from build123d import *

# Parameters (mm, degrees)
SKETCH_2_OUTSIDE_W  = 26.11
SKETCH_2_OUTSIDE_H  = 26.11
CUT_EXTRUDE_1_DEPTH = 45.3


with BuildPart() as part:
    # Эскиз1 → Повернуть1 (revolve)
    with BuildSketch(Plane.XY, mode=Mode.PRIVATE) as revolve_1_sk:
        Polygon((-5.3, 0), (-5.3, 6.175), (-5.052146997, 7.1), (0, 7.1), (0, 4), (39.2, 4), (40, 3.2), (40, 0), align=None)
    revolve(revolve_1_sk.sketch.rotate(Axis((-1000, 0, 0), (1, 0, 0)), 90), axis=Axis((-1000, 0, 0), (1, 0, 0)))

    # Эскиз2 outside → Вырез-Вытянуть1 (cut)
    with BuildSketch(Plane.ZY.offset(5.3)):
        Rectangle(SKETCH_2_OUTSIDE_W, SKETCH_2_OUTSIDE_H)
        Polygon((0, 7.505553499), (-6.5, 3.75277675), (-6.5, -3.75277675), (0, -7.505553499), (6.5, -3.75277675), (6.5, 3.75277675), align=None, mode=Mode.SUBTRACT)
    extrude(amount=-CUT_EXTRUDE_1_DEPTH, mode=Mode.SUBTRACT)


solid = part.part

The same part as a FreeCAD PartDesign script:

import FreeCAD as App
import Part
import Sketcher

V = App.Vector
Q = App.Units.Quantity

doc = App.newDocument("Part")
body = doc.addObject("PartDesign::Body", "Body")

sketch1 = doc.addObject("Sketcher::SketchObject", "Sketch")
body.addObject(sketch1)
sketch1.AttachmentSupport = (doc.XY_Plane, [""])
sketch1.MapMode = "FlatFace"
sketch1.addGeometry([
    Part.LineSegment(V(-5.3, 6.2, 0), V(-5.3, 0, 0)),
    Part.LineSegment(V(-5.3, 0, 0), V(40, 0, 0)),
    Part.LineSegment(V(40, 0, 0), V(40, 3.2, 0)),
    Part.LineSegment(V(40, 3.2, 0), V(39.2, 4, 0)),
    Part.LineSegment(V(39.2, 4, 0), V(0, 4, 0)),
    Part.LineSegment(V(0, 4, 0), V(0, 7.1, 0)),
    Part.LineSegment(V(0, 7.1, 0), V(-5.1, 7.1, 0)),
    Part.LineSegment(V(-5.1, 7.1, 0), V(-5.3, 6.2, 0)),
], False)
sketch1.addConstraint([
    Sketcher.Constraint("Coincident", 0, 2, 1, 1),
    Sketcher.Constraint("Coincident", 1, 2, 2, 1),
    Sketcher.Constraint("Coincident", 2, 2, 3, 1),
    Sketcher.Constraint("Coincident", 3, 2, 4, 1),
    Sketcher.Constraint("Coincident", 4, 2, 5, 1),
    Sketcher.Constraint("Coincident", 5, 2, 6, 1),
    Sketcher.Constraint("Coincident", 6, 2, 7, 1),
    Sketcher.Constraint("Coincident", 7, 2, 0, 1),
    Sketcher.Constraint("Vertical", 0),
    Sketcher.Constraint("Horizontal", 1),
    Sketcher.Constraint("Vertical", 2),
    Sketcher.Constraint("Horizontal", 4),
    Sketcher.Constraint("Vertical", 5),
    Sketcher.Constraint("Horizontal", 6),
    Sketcher.Constraint("PointOnObject", 0, 2, -1),
    Sketcher.Constraint("PointOnObject", 4, 2, -2),
    Sketcher.Constraint("Angle", 3, Q("135 deg")),
    Sketcher.Constraint("Angle", 7, Q("-105 deg")),
    Sketcher.Constraint("DistanceX", 1, 1, 1, 2, 45.3),
    Sketcher.Constraint("DistanceX", 4, 2, 4, 1, 39.2),
    Sketcher.Constraint("DistanceY", 2, 1, 2, 2, 3.2),
    Sketcher.Constraint("DistanceY", 5, 1, 5, 2, 3.1),
    Sketcher.Constraint("DistanceX", -1, 1, 1, 2, 40.0),
    Sketcher.Constraint("DistanceY", 0, 2, 0, 1, 6.175),
])
revolution = doc.addObject("PartDesign::Revolution", "Revolution")
body.addObject(revolution)
revolution.Profile = sketch1
revolution.ReferenceAxis = (sketch1, ["H_Axis"])
revolution.Angle = 360

sketch2 = doc.addObject("Sketcher::SketchObject", "Sketch001")
body.addObject(sketch2)
sketch2.AttachmentSupport = (doc.YZ_Plane, [""])
sketch2.MapMode = "FlatFace"
sketch2.AttachmentOffset = App.Placement(V(0, 0, -5.3), App.Rotation())
sketch2.addGeometry([
    Part.LineSegment(V(13, -13, 0), V(-13, -13, 0)),
    Part.LineSegment(V(-13, -13, 0), V(-13, 13, 0)),
    Part.LineSegment(V(-13, 13, 0), V(13, 13, 0)),
    Part.LineSegment(V(13, 13, 0), V(13, -13, 0)),
    Part.LineSegment(V(4, -6, 0), V(8, 0, 0)),
    Part.LineSegment(V(8, 0, 0), V(4, 6, 0)),
    Part.LineSegment(V(4, 6, 0), V(-4, 6, 0)),
    Part.LineSegment(V(-4, 6, 0), V(-8, 0, 0)),
    Part.LineSegment(V(-8, 0, 0), V(-4, -6, 0)),
    Part.LineSegment(V(-4, -6, 0), V(4, -6, 0)),
], False)
sketch2.addConstraint([
    Sketcher.Constraint("Coincident", 0, 2, 1, 1),
    Sketcher.Constraint("Coincident", 1, 2, 2, 1),
    Sketcher.Constraint("Coincident", 2, 2, 3, 1),
    Sketcher.Constraint("Coincident", 3, 2, 0, 1),
    Sketcher.Constraint("Coincident", 4, 2, 5, 1),
    Sketcher.Constraint("Coincident", 5, 2, 6, 1),
    Sketcher.Constraint("Coincident", 6, 2, 7, 1),
    Sketcher.Constraint("Coincident", 7, 2, 8, 1),
    Sketcher.Constraint("Coincident", 8, 2, 9, 1),
    Sketcher.Constraint("Coincident", 9, 2, 4, 1),
    Sketcher.Constraint("Horizontal", 0),
    Sketcher.Constraint("Vertical", 1),
    Sketcher.Constraint("Horizontal", 2),
    Sketcher.Constraint("Vertical", 3),
    Sketcher.Constraint("Horizontal", 6),
    Sketcher.Constraint("Horizontal", 9),
    Sketcher.Constraint("Symmetric", 0, 2, 2, 2, -1, 1),
    Sketcher.Constraint("Symmetric", 4, 2, 7, 2, -1, 1),
    Sketcher.Constraint("Symmetric", 5, 2, 8, 2, -1, 1),
    Sketcher.Constraint("PointOnObject", 4, 2, -1),
    Sketcher.Constraint("Parallel", 4, 7),
    Sketcher.Constraint("Vertical", 6, 2, 8, 2),
    Sketcher.Constraint("Equal", 2, 1),
    Sketcher.Constraint("Angle", 4, Q("60 deg")),
    Sketcher.Constraint("DistanceY", 8, 2, 6, 2, 13.0),
    Sketcher.Constraint("DistanceX", 0, 2, 0, 1, 26.11),
    Sketcher.Constraint("DistanceX", 6, 2, 6, 1, 7.505554),
])
pocket1 = doc.addObject("PartDesign::Pocket", "Pocket")
body.addObject(pocket1)
pocket1.Profile = sketch2
pocket1.Length = 45.3
pocket1.Reversed = True

doc.recompute()
